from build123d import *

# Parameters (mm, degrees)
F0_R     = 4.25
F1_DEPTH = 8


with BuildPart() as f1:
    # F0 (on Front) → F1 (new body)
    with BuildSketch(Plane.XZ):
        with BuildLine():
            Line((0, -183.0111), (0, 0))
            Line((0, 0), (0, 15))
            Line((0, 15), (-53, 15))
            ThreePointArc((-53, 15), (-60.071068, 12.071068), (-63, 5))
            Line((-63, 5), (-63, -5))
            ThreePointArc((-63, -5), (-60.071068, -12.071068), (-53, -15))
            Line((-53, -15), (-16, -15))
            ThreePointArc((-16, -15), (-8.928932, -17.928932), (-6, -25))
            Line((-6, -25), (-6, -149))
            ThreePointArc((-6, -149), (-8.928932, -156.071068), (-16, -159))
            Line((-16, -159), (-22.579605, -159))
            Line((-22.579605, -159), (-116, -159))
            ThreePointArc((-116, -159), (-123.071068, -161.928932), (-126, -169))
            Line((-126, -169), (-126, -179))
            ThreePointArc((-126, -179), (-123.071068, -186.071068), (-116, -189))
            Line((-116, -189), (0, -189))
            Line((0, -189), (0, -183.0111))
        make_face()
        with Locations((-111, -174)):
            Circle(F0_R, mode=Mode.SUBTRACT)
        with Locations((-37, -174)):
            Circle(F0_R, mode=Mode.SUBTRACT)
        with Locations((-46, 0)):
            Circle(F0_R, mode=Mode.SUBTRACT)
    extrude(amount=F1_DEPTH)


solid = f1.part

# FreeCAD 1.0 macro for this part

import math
import FreeCAD as App
import Part
import Sketcher
from FreeCAD import Vector
Q = App.Units.Quantity

doc = App.newDocument("Part")
body = doc.addObject("PartDesign::Body", "Body")

# Sketch on XZ plane
sketch1 = body.newObject("Sketcher::SketchObject", "Sketch")
sketch1.AttachmentSupport = (doc.getObject("XZ_Plane"), [""])
sketch1.MapMode = "FlatFace"
sketch1.addGeometry([
    Part.LineSegment(Vector(0, 15, 0), Vector(-53, 15, 0)),  # 0
    Part.ArcOfCircle(Part.Circle(Vector(-53, 5, 0), Vector(0, 0, 1), 10), math.radians(90), math.radians(180)),  # 1
    Part.LineSegment(Vector(-63, 5, 0), Vector(-63, -5, 0)),  # 2
    Part.ArcOfCircle(Part.Circle(Vector(-53, -5, 0), Vector(0, 0, 1), 10), math.radians(180), math.radians(270)),  # 3
    Part.LineSegment(Vector(-53, -15, 0), Vector(-16, -15, 0)),  # 4
    Part.ArcOfCircle(Part.Circle(Vector(-16, -25, 0), Vector(0, 0, 1), 10), math.radians(0), math.radians(90)),  # 5
    Part.LineSegment(Vector(-6, -25, 0), Vector(-6, -149, 0)),  # 6
    Part.ArcOfCircle(Part.Circle(Vector(-16, -149, 0), Vector(0, 0, 1), 10), math.radians(-90), math.radians(0)),  # 7
    Part.LineSegment(Vector(-16, -159, 0), Vector(-116, -159, 0)),  # 8
    Part.ArcOfCircle(Part.Circle(Vector(-116, -169, 0), Vector(0, 0, 1), 10), math.radians(90), math.radians(180)),  # 9
    Part.LineSegment(Vector(-126, -169, 0), Vector(-126, -179, 0)),  # 10
    Part.ArcOfCircle(Part.Circle(Vector(-116, -179, 0), Vector(0, 0, 1), 10), math.radians(180), math.radians(270)),  # 11
    Part.LineSegment(Vector(-116, -189, 0), Vector(0, -189, 0)),  # 12
    Part.LineSegment(Vector(0, -189, 0), Vector(0, 15, 0)),  # 13
    Part.Circle(Vector(-111, -174, 0), Vector(0, 0, 1), 4.2),  # 14
    Part.Circle(Vector(-37, -174, 0), Vector(0, 0, 1), 4.2),  # 15
    Part.Circle(Vector(-46, 0, 0), Vector(0, 0, 1), 4.2),  # 16
], False)
sketch1.addConstraint([
    Sketcher.Constraint("Tangent", 0, 2, 1, 1),
    Sketcher.Constraint("Tangent", 1, 2, 2, 1),
    Sketcher.Constraint("Tangent", 2, 2, 3, 1),
    Sketcher.Constraint("Tangent", 3, 2, 4, 1),
    Sketcher.Constraint("Tangent", 4, 2, 5, 2),
    Sketcher.Constraint("Tangent", 5, 1, 6, 1),
    Sketcher.Constraint("Tangent", 6, 2, 7, 2),
    Sketcher.Constraint("Tangent", 7, 1, 8, 1),
    Sketcher.Constraint("Tangent", 8, 2, 9, 1),
    Sketcher.Constraint("Tangent", 9, 2, 10, 1),
    Sketcher.Constraint("Tangent", 10, 2, 11, 1),
    Sketcher.Constraint("Tangent", 11, 2, 12, 1),
    Sketcher.Constraint("Coincident", 12, 2, 13, 1),
    Sketcher.Constraint("Coincident", 13, 2, 0, 1),
    Sketcher.Constraint("Horizontal", 0),
    Sketcher.Constraint("Vertical", 2),
    Sketcher.Constraint("Horizontal", 4),
    Sketcher.Constraint("Vertical", 6),
    Sketcher.Constraint("Horizontal", 8),
    Sketcher.Constraint("Vertical", 10),
    Sketcher.Constraint("Horizontal", 12),
    Sketcher.Constraint("Vertical", 13),
    Sketcher.Constraint("Equal", 1, 3),
    Sketcher.Constraint("Equal", 3, 5),
    Sketcher.Constraint("Equal", 5, 7),
    Sketcher.Constraint("Equal", 7, 9),
    Sketcher.Constraint("Equal", 9, 11),
    Sketcher.Constraint("Equal", 14, 15),
    Sketcher.Constraint("Equal", 15, 16),
    Sketcher.Constraint("PointOnObject", 16, 3, -1),
    Sketcher.Constraint("PointOnObject", 12, 2, -2),
    Sketcher.Constraint("Horizontal", 14, 3, 15, 3),
    Sketcher.Constraint("Equal", 2, 10),
    Sketcher.Constraint("Radius", 1, Q("9.999999 mm")),
    Sketcher.Constraint("Diameter", 14, Q("8.5 mm")),
    Sketcher.Constraint("DistanceX", 0, 2, 0, 1, Q("53 mm")),
    Sketcher.Constraint("DistanceX", 4, 1, 4, 2, Q("37 mm")),
    Sketcher.Constraint("DistanceX", 8, 2, 8, 1, Q("100 mm")),
    Sketcher.Constraint("DistanceY", 2, 2, 2, 1, Q("10 mm")),
    Sketcher.Constraint("DistanceY", 6, 2, 6, 1, Q("124 mm")),
    Sketcher.Constraint("DistanceY", -1, 1, 1, 3, Q("5.000001 mm")),
    Sketcher.Constraint("DistanceX", 14, 3, -1, 1, Q("111 mm")),
    Sketcher.Constraint("DistanceY", 14, 3, -1, 1, Q("174 mm")),
    Sketcher.Constraint("DistanceX", 15, 3, -1, 1, Q("37 mm")),
    Sketcher.Constraint("DistanceX", 16, 3, -1, 1, Q("46 mm")),
])
pad1 = body.newObject("PartDesign::Pad", "Pad")
pad1.Profile = sketch1
pad1.Length = 8

doc.recompute()
